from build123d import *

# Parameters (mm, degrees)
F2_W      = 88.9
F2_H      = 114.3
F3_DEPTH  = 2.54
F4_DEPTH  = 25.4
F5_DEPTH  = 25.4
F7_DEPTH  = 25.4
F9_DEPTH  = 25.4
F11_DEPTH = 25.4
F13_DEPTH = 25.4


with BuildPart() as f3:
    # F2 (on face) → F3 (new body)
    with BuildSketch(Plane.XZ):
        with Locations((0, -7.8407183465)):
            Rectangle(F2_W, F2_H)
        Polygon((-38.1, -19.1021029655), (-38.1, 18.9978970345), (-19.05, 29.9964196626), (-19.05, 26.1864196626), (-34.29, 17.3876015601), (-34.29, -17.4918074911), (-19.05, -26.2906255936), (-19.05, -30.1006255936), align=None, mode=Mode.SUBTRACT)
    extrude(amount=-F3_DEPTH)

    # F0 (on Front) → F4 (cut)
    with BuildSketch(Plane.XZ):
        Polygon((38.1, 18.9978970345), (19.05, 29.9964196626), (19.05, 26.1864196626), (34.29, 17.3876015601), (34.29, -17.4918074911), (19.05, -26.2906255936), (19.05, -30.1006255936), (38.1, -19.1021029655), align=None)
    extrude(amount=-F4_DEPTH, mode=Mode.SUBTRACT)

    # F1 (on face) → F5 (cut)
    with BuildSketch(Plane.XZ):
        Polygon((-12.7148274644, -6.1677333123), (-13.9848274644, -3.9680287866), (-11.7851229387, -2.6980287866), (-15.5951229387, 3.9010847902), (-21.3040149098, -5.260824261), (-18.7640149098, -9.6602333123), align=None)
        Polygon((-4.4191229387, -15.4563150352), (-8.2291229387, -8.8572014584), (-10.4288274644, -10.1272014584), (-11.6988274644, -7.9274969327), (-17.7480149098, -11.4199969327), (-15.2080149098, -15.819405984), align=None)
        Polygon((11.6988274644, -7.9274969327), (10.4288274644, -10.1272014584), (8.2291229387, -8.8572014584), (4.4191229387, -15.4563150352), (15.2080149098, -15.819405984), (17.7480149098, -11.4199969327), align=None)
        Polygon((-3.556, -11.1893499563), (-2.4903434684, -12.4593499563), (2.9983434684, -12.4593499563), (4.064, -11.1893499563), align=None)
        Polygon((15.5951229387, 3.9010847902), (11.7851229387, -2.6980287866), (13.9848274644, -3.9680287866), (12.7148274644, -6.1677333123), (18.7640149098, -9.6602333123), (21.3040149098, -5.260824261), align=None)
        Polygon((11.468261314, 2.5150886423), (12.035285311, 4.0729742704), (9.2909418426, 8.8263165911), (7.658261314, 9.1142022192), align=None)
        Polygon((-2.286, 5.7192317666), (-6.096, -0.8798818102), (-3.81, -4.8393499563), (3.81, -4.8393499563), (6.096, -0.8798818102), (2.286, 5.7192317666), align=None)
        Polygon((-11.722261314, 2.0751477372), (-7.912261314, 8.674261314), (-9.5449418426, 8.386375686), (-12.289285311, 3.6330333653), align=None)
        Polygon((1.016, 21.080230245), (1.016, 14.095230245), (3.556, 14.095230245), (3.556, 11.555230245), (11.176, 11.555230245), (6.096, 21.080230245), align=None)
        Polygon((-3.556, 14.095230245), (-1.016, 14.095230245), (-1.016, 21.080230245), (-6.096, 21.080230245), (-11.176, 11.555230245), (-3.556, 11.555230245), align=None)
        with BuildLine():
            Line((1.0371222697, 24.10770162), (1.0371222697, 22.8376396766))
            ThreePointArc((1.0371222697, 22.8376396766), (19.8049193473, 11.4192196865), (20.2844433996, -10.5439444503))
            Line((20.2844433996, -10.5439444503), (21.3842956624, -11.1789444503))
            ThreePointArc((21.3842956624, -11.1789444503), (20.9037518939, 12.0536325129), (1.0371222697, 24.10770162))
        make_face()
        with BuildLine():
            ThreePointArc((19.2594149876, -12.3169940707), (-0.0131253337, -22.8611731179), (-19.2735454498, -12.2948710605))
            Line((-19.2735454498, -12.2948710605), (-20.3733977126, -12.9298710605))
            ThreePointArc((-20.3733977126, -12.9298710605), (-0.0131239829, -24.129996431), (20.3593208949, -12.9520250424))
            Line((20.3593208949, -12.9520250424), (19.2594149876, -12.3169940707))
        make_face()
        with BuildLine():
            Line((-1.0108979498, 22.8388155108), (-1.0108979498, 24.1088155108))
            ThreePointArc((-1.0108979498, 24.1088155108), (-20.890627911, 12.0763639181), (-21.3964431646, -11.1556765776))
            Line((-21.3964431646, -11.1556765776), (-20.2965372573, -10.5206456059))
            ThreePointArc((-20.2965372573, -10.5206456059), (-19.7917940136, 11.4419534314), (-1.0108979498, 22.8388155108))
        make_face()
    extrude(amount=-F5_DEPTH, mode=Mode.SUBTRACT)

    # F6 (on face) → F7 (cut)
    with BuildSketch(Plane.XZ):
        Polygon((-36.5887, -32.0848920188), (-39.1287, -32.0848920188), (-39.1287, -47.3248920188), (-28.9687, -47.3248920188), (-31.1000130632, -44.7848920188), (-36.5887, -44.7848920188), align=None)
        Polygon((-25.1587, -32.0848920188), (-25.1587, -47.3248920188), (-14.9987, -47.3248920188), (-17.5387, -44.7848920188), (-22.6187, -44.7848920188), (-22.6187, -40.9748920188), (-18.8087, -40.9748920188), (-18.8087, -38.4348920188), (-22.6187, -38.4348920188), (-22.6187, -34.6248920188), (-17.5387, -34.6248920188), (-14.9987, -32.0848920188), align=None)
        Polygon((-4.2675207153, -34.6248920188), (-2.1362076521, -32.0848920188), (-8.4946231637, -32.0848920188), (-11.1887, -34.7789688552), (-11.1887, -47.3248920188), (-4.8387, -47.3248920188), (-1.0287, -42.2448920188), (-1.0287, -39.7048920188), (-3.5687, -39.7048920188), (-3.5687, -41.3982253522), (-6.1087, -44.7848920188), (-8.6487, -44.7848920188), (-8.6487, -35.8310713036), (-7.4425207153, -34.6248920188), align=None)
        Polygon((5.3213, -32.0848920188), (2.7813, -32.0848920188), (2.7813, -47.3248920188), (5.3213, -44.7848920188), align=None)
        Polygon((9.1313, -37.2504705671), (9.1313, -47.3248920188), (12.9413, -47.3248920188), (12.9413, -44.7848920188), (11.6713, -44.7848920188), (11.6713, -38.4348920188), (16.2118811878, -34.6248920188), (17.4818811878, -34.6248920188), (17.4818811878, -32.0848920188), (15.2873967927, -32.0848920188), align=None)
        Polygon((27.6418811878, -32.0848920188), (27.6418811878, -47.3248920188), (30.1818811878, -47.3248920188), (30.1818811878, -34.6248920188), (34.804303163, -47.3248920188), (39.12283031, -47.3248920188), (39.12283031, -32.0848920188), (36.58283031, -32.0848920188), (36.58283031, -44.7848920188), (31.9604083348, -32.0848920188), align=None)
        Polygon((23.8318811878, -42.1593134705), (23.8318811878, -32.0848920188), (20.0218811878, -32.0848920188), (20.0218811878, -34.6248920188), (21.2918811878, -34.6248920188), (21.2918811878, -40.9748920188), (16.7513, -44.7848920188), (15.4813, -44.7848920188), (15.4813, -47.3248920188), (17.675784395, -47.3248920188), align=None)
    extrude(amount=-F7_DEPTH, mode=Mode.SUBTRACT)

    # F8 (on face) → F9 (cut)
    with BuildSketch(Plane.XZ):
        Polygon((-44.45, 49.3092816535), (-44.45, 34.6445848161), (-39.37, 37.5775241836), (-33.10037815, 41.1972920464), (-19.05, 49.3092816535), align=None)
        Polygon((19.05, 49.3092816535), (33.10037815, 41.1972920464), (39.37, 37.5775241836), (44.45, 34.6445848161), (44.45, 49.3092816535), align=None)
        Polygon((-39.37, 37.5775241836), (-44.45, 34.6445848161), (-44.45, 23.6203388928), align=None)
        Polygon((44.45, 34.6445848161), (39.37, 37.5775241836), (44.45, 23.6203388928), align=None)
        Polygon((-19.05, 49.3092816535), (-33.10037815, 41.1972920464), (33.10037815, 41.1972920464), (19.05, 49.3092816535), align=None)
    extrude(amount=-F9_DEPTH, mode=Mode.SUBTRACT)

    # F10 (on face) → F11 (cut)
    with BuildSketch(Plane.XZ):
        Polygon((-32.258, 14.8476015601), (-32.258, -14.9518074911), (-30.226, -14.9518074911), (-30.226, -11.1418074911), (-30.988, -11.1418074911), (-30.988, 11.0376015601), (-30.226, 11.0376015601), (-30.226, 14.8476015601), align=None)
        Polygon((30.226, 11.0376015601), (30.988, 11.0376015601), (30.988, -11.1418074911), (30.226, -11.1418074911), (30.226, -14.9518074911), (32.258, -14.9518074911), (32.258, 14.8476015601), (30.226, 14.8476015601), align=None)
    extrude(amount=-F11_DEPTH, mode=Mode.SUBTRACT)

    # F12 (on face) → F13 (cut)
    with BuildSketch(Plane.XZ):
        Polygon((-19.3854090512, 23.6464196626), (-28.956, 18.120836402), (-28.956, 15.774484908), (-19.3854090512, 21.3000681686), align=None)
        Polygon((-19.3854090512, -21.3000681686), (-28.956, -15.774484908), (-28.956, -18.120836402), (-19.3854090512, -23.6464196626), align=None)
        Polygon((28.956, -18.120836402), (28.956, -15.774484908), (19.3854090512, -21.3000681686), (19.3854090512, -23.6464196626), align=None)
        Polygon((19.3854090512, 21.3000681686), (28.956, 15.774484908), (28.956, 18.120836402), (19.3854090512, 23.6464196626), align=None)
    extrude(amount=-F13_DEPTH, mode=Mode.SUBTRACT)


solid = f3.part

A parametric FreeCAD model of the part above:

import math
import FreeCAD as App
import Part
import Sketcher

V = App.Vector
Q = App.Units.Quantity

doc = App.newDocument("Part")
body = doc.addObject("PartDesign::Body", "Body")

sketch1 = body.newObject("Sketcher::SketchObject", "Sketch")
sketch1.AttachmentSupport = (doc.getObject("XZ_Plane"), [""])
sketch1.MapMode = "FlatFace"
sketch1.addGeometry([
    Part.LineSegment(V(-44.45, 49.309282, 0), V(-44.45, -64.990718, 0)),
    Part.LineSegment(V(-44.45, -64.990718, 0), V(44.45, -64.990718, 0)),
    Part.LineSegment(V(44.45, -64.990718, 0), V(44.45, 49.309282, 0)),
    Part.LineSegment(V(44.45, 49.309282, 0), V(-44.45, 49.309282, 0)),
    Part.LineSegment(V(-19.05, -30.100626, 0), V(-38.1, -19.102103, 0)),
    Part.LineSegment(V(-38.1, -19.102103, 0), V(-38.1, 18.997897, 0)),
    Part.LineSegment(V(-38.1, 18.997897, 0), V(-19.05, 29.99642, 0)),
    Part.LineSegment(V(-19.05, 29.99642, 0), V(-19.05, 26.18642, 0)),
    Part.LineSegment(V(-19.05, 26.18642, 0), V(-34.29, 17.387602, 0)),
    Part.LineSegment(V(-34.29, 17.387602, 0), V(-34.29, -17.491807, 0)),
    Part.LineSegment(V(-34.29, -17.491807, 0), V(-19.05, -26.290626, 0)),
    Part.LineSegment(V(-19.05, -26.290626, 0), V(-19.05, -30.100626, 0)),
], False)
sketch1.addConstraint([
    Sketcher.Constraint("Coincident", 0, 2, 1, 1),
    Sketcher.Constraint("Coincident", 1, 2, 2, 1),
    Sketcher.Constraint("Coincident", 2, 2, 3, 1),
    Sketcher.Constraint("Coincident", 3, 2, 0, 1),
    Sketcher.Constraint("Coincident", 4, 2, 5, 1),
    Sketcher.Constraint("Coincident", 5, 2, 6, 1),
    Sketcher.Constraint("Coincident", 6, 2, 7, 1),
    Sketcher.Constraint("Coincident", 7, 2, 8, 1),
    Sketcher.Constraint("Coincident", 8, 2, 9, 1),
    Sketcher.Constraint("Coincident", 9, 2, 10, 1),
    Sketcher.Constraint("Coincident", 10, 2, 11, 1),
    Sketcher.Constraint("Coincident", 11, 2, 4, 1),
    Sketcher.Constraint("Vertical", 0),
    Sketcher.Constraint("Horizontal", 1),
    Sketcher.Constraint("Vertical", 2),
    Sketcher.Constraint("Horizontal", 3),
    Sketcher.Constraint("Vertical", 5),
    Sketcher.Constraint("Vertical", 7),
    Sketcher.Constraint("Vertical", 9),
    Sketcher.Constraint("Vertical", 11),
    Sketcher.Constraint("Parallel", 6, 8),
    Sketcher.Constraint("Parallel", 4, 10),
    Sketcher.Constraint("Vertical", 7, 2, 10, 2),
    Sketcher.Constraint("Equal", 7, 11),
    Sketcher.Constraint("Equal", 4, 6),
    Sketcher.Constraint("DistanceX", 1, 1, 1, 2, Q("3.5 in")),
    Sketcher.Constraint("DistanceY", 0, 2, 0, 1, Q("4.5 in")),
    Sketcher.Constraint("DistanceY", 5, 1, 5, 2, Q("1.5 in")),
    Sketcher.Constraint("Angle", 4, Q("150 deg")),
    Sketcher.Constraint("DistanceX", 3, 2, 6, 2, Q("1 in")),
    Sketcher.Constraint("DistanceY", 7, 2, 7, 1, Q("0.15 in")),
    Sketcher.Constraint("DistanceX", 4, 2, -1, 1, Q("1.5 in")),
    Sketcher.Constraint("DistanceX", 8, 2, 7, 2, Q("0.6 in")),
    Sketcher.Constraint("DistanceX", 0, 2, -1, 1, Q("1.75 in")),
    Sketcher.Constraint("DistanceY", -1, 1, 8, 2, Q("17.387602 mm")),
    Sketcher.Constraint("DistanceY", 0, 2, -1, 1, Q("64.990718 mm")),
])
pad1 = body.newObject("PartDesign::Pad", "Pad")
pad1.Profile = sketch1
pad1.Length = Q("0.1 in")
pad1.Reversed = True

sketch2 = body.newObject("Sketcher::SketchObject", "Sketch001")
sketch2.AttachmentSupport = (doc.getObject("XZ_Plane"), [""])
sketch2.MapMode = "FlatFace"
sketch2.addGeometry([
    Part.LineSegment(V(38.1, 18.997897, 0), V(19.05, 29.99642, 0)),
    Part.LineSegment(V(19.05, 29.99642, 0), V(19.05, 26.18642, 0)),
    Part.LineSegment(V(19.05, 26.18642, 0), V(34.29, 17.387602, 0)),
    Part.LineSegment(V(34.29, 17.387602, 0), V(34.29, -17.491807, 0)),
    Part.LineSegment(V(34.29, -17.491807, 0), V(19.05, -26.290626, 0)),
    Part.LineSegment(V(19.05, -26.290626, 0), V(19.05, -30.100626, 0)),
    Part.LineSegment(V(19.05, -30.100626, 0), V(38.1, -19.102103, 0)),
    Part.LineSegment(V(38.1, -19.102103, 0), V(38.1, 18.997897, 0)),
], False)
sketch2.addConstraint([
    Sketcher.Constraint("Coincident", 0, 2, 1, 1),
    Sketcher.Constraint("Coincident", 1, 2, 2, 1),
    Sketcher.Constraint("Coincident", 2, 2, 3, 1),
    Sketcher.Constraint("Coincident", 3, 2, 4, 1),
    Sketcher.Constraint("Coincident", 4, 2, 5, 1),
    Sketcher.Constraint("Coincident", 5, 2, 6, 1),
    Sketcher.Constraint("Coincident", 6, 2, 7, 1),
    Sketcher.Constraint("Coincident", 7, 2, 0, 1),
    Sketcher.Constraint("Vertical", 1),
    Sketcher.Constraint("Vertical", 3),
    Sketcher.Constraint("Vertical", 5),
    Sketcher.Constraint("Vertical", 7),
    Sketcher.Constraint("Parallel", 0, 2),
    Sketcher.Constraint("Parallel", 4, 6),
    Sketcher.Constraint("Vertical", 1, 2, 4, 2),
    Sketcher.Constraint("Equal", 1, 5),
    Sketcher.Constraint("Equal", 2, 4),
    Sketcher.Constraint("DistanceY", 7, 1, 7, 2, Q("1.5 in")),
    Sketcher.Constraint("Angle", 0, Q("150 deg")),
    Sketcher.Constraint("DistanceY", 1, 2, 1, 1, Q("0.15 in")),
    Sketcher.Constraint("DistanceX", -1, 1, 6, 2, Q("1.5 in")),
    Sketcher.Constraint("DistanceX", 1, 2, 2, 2, Q("0.6 in")),
    Sketcher.Constraint("DistanceX", -1, 1, 0, 2, Q("0.75 in")),
    Sketcher.Constraint("DistanceY", -1, 1, 2, 2, Q("17.387602 mm")),
])
pocket1 = body.newObject("PartDesign::Pocket", "Pocket")
pocket1.Profile = sketch2
pocket1.Length = Q("1 in")

sketch3 = body.newObject("Sketcher::SketchObject", "Sketch002")
sketch3.AttachmentSupport = (doc.getObject("XZ_Plane"), [""])
sketch3.MapMode = "FlatFace"
sketch3.addGeometry([
    Part.LineSegment(V(-12.714827, -6.167733, 0), V(-13.984827, -3.968029, 0)),
    Part.LineSegment(V(-13.984827, -3.968029, 0), V(-11.785123, -2.698029, 0)),
    Part.LineSegment(V(-11.785123, -2.698029, 0), V(-15.595123, 3.901085, 0)),
    Part.LineSegment(V(-15.595123, 3.901085, 0), V(-21.304015, -5.260824, 0)),
    Part.LineSegment(V(-21.304015, -5.260824, 0), V(-18.764015, -9.660233, 0)),
    Part.LineSegment(V(-18.764015, -9.660233, 0), V(-12.714827, -6.167733, 0)),
    Part.LineSegment(V(-4.419123, -15.456315, 0), V(-8.229123, -8.857201, 0)),
    Part.LineSegment(V(-8.229123, -8.857201, 0), V(-10.428827, -10.127201, 0)),
    Part.LineSegment(V(-10.428827, -10.127201, 0), V(-11.698827, -7.927497, 0)),
    Part.LineSegment(V(-11.698827, -7.927497, 0), V(-17.748015, -11.419997, 0)),
    Part.LineSegment(V(-17.748015, -11.419997, 0), V(-15.208015, -15.819406, 0)),
    Part.LineSegment(V(-15.208015, -15.819406, 0), V(-4.419123, -15.456315, 0)),
    Part.LineSegment(V(11.698827, -7.927497, 0), V(10.428827, -10.127201, 0)),
    Part.LineSegment(V(10.428827, -10.127201, 0), V(8.229123, -8.857201, 0)),
    Part.LineSegment(V(8.229123, -8.857201, 0), V(4.419123, -15.456315, 0)),
    Part.LineSegment(V(4.419123, -15.456315, 0), V(15.208015, -15.819406, 0)),
    Part.LineSegment(V(15.208015, -15.819406, 0), V(17.748015, -11.419997, 0)),
    Part.LineSegment(V(17.748015, -11.419997, 0), V(11.698827, -7.927497, 0)),
    Part.LineSegment(V(-3.556, -11.18935, 0), V(-2.490343, -12.45935, 0)),
    Part.LineSegment(V(-2.490343, -12.45935, 0), V(2.998343, -12.45935, 0)),
    Part.LineSegment(V(2.998343, -12.45935, 0), V(4.064, -11.18935, 0)),
    Part.LineSegment(V(4.064, -11.18935, 0), V(-3.556, -11.18935, 0)),
    Part.LineSegment(V(15.595123, 3.901085, 0), V(11.785123, -2.698029, 0)),
    Part.LineSegment(V(11.785123, -2.698029, 0), V(13.984827, -3.968029, 0)),
    Part.LineSegment(V(13.984827, -3.968029, 0), V(12.714827, -6.167733, 0)),
    Part.LineSegment(V(12.714827, -6.167733, 0), V(18.764015, -9.660233, 0)),
    Part.LineSegment(V(18.764015, -9.660233, 0), V(21.304015, -5.260824, 0)),
    Part.LineSegment(V(21.304015, -5.260824, 0), V(15.595123, 3.901085, 0)),
    Part.LineSegment(V(11.468261, 2.515089, 0), V(12.035285, 4.072974, 0)),
    Part.LineSegment(V(12.035285, 4.072974, 0), V(9.290942, 8.826317, 0)),
    Part.LineSegment(V(9.290942, 8.826317, 0), V(7.658261, 9.114202, 0)),
    Part.LineSegment(V(7.658261, 9.114202, 0), V(11.468261, 2.515089, 0)),
    Part.LineSegment(V(-2.286, 5.719232, 0), V(-6.096, -0.879882, 0)),
    Part.LineSegment(V(-6.096, -0.879882, 0), V(-3.81, -4.83935, 0)),
    Part.LineSegment(V(-3.81, -4.83935, 0), V(3.81, -4.83935, 0)),
    Part.LineSegment(V(3.81, -4.83935, 0), V(6.096, -0.879882, 0)),
    Part.LineSegment(V(6.096, -0.879882, 0), V(2.286, 5.719232, 0)),
    Part.LineSegment(V(2.286, 5.719232, 0), V(-2.286, 5.719232, 0)),
    Part.LineSegment(V(-11.722261, 2.075148, 0), V(-7.912261, 8.674261, 0)),
    Part.LineSegment(V(-7.912261, 8.674261, 0), V(-9.544942, 8.386376, 0)),
    Part.LineSegment(V(-9.544942, 8.386376, 0), V(-12.289285, 3.633033, 0)),
    Part.LineSegment(V(-12.289285, 3.633033, 0), V(-11.722261, 2.075148, 0)),
    Part.LineSegment(V(1.016, 21.08023, 0), V(1.016, 14.09523, 0)),
    Part.LineSegment(V(1.016, 14.09523, 0), V(3.556, 14.09523, 0)),
    Part.LineSegment(V(3.556, 14.09523, 0), V(3.556, 11.55523, 0)),
    Part.LineSegment(V(3.556, 11.55523, 0), V(11.176, 11.55523, 0)),
    Part.LineSegment(V(11.176, 11.55523, 0), V(6.096, 21.08023, 0)),
    Part.LineSegment(V(6.096, 21.08023, 0), V(1.016, 21.08023, 0)),
    Part.LineSegment(V(-3.556, 14.09523, 0), V(-1.016, 14.09523, 0)),
    Part.LineSegment(V(-1.016, 14.09523, 0), V(-1.016, 21.08023, 0)),
    Part.LineSegment(V(-1.016, 21.08023, 0), V(-6.096, 21.08023, 0)),
    Part.LineSegment(V(-6.096, 21.08023, 0), V(-11.176, 11.55523, 0)),
    Part.LineSegment(V(-11.176, 11.55523, 0), V(-3.556, 11.55523, 0)),
    Part.LineSegment(V(-3.556, 11.55523, 0), V(-3.556, 14.09523, 0)),
    Part.LineSegment(V(1.037122, 24.107702, 0), V(1.037122, 22.83764, 0)),
    Part.ArcOfCircle(Part.Circle(V(0, 0, 0), V(0, 0, 1), 22.861177), math.radians(-27.465613), math.radians(87.399822)),
    Part.LineSegment(V(20.284443, -10.543944, 0), V(21.384296, -11.178944, 0)),
    Part.ArcOfCircle(Part.Circle(V(0, 0, 0), V(0, 0, 1), 24.13), math.radians(-27.598958), math.radians(87.536633)),
    Part.ArcOfCircle(Part.Circle(V(0, 0, 0), V(0, 0, 1), 22.861177), math.radians(-147.465613), math.radians(-32.600178)),
    Part.LineSegment(V(-19.273545, -12.294871, 0), V(-20.373398, -12.929871, 0)),
    Part.ArcOfCircle(Part.Circle(V(0, 0, 0), V(0, 0, 1), 24.13), math.radians(-147.598958), math.radians(-32.463367)),
    Part.LineSegment(V(20.359321, -12.952025, 0), V(19.259415, -12.316994, 0)),
    Part.LineSegment(V(-1.010898, 22.838816, 0), V(-1.010898, 24.108816, 0)),
    Part.ArcOfCircle(Part.Circle(V(0, 0, 0), V(0, 0, 1), 24.13), math.radians(92.401042), math.radians(207.536633)),
    Part.LineSegment(V(-21.396443, -11.155677, 0), V(-20.296537, -10.520646, 0)),
    Part.ArcOfCircle(Part.Circle(V(0, 0, 0), V(0, 0, 1), 22.861177), math.radians(92.534387), math.radians(207.399822)),
], False)
sketch3.addConstraint([
    Sketcher.Constraint("Coincident", 0, 2, 1, 1),
    Sketcher.Constraint("Coincident", 1, 2, 2, 1),
    Sketcher.Constraint("Coincident", 2, 2, 3, 1),
    Sketcher.Constraint("Coincident", 3, 2, 4, 1),
    Sketcher.Constraint("Coincident", 4, 2, 5, 1),
    Sketcher.Constraint("Coincident", 5, 2, 0, 1),
    Sketcher.Constraint("Coincident", 6, 2, 7, 1),
    Sketcher.Constraint("Coincident", 7, 2, 8, 1),
    Sketcher.Constraint("Coincident", 8, 2, 9, 1),
    Sketcher.Constraint("Coincident", 9, 2, 10, 1),
    Sketcher.Constraint("Coincident", 10, 2, 11, 1),
    Sketcher.Constraint("Coincident", 11, 2, 6, 1),
    Sketcher.Constraint("Coincident", 12, 2, 13, 1),
    Sketcher.Constraint("Coincident", 13, 2, 14, 1),
    Sketcher.Constraint("Coincident", 14, 2, 15, 1),
    Sketcher.Constraint("Coincident", 15, 2, 16, 1),
    Sketcher.Constraint("Coincident", 16, 2, 17, 1),
    Sketcher.Constraint("Coincident", 17, 2, 12, 1),
    Sketcher.Constraint("Coincident", 18, 2, 19, 1),
    Sketcher.Constraint("Coincident", 19, 2, 20, 1),
    Sketcher.Constraint("Coincident", 20, 2, 21, 1),
    Sketcher.Constraint("Coincident", 21, 2, 18, 1),
    Sketcher.Constraint("Coincident", 22, 2, 23, 1),
    Sketcher.Constraint("Coincident", 23, 2, 24, 1),
    Sketcher.Constraint("Coincident", 24, 2, 25, 1),
    Sketcher.Constraint("Coincident", 25, 2, 26, 1),
    Sketcher.Constraint("Coincident", 26, 2, 27, 1),
    Sketcher.Constraint("Coincident", 27, 2, 22, 1),
    Sketcher.Constraint("Coincident", 28, 2, 29, 1),
    Sketcher.Constraint("Coincident", 29, 2, 30, 1),
    Sketcher.Constraint("Coincident", 30, 2, 31, 1),
    Sketcher.Constraint("Coincident", 31, 2, 28, 1),
    Sketcher.Constraint("Coincident", 32, 2, 33, 1),
    Sketcher.Constraint("Coincident", 33, 2, 34, 1),
    Sketcher.Constraint("Coincident", 34, 2, 35, 1),
    Sketcher.Constraint("Coincident", 35, 2, 36, 1),
    Sketcher.Constraint("Coincident", 36, 2, 37, 1),
    Sketcher.Constraint("Coincident", 37, 2, 32, 1),
    Sketcher.Constraint("Coincident", 38, 2, 39, 1),
    Sketcher.Constraint("Coincident", 39, 2, 40, 1),
    Sketcher.Constraint("Coincident", 40, 2, 41, 1),
    Sketcher.Constraint("Coincident", 41, 2, 38, 1),
    Sketcher.Constraint("Coincident", 42, 2, 43, 1),
    Sketcher.Constraint("Coincident", 43, 2, 44, 1),
    Sketcher.Constraint("Coincident", 44, 2, 45, 1),
    Sketcher.Constraint("Coincident", 45, 2, 46, 1),
    Sketcher.Constraint("Coincident", 46, 2, 47, 1),
    Sketcher.Constraint("Coincident", 47, 2, 42, 1),
    Sketcher.Constraint("Coincident", 48, 2, 49, 1),
    Sketcher.Constraint("Coincident", 49, 2, 50, 1),
    Sketcher.Constraint("Coincident", 50, 2, 51, 1),
    Sketcher.Constraint("Coincident", 51, 2, 52, 1),
    Sketcher.Constraint("Coincident", 52, 2, 53, 1),
    Sketcher.Constraint("Coincident", 53, 2, 48, 1),
    Sketcher.Constraint("Coincident", 54, 2, 55, 2),
    Sketcher.Constraint("Coincident", 55, 1, 56, 1),
    Sketcher.Constraint("Coincident", 56, 2, 57, 1),
    Sketcher.Constraint("Coincident", 57, 2, 54, 1),
    Sketcher.Constraint("Coincident", 58, 1, 59, 1),
    Sketcher.Constraint("Coincident", 59, 2, 60, 1),
    Sketcher.Constraint("Coincident", 60, 2, 61, 1),
    Sketcher.Constraint("Coincident", 61, 2, 58, 2),
    Sketcher.Constraint("Coincident", 62, 2, 63, 1),
    Sketcher.Constraint("Coincident", 63, 2, 64, 1),
    Sketcher.Constraint("Coincident", 64, 2, 65, 2),
    Sketcher.Constraint("Coincident", 65, 1, 62, 1),
    Sketcher.Constraint("Horizontal", 19),
    Sketcher.Constraint("Horizontal", 21),
    Sketcher.Constraint("Horizontal", 34),
    Sketcher.Constraint("Horizontal", 37),
    Sketcher.Constraint("Vertical", 42),
    Sketcher.Constraint("Horizontal", 43),
    Sketcher.Constraint("Vertical", 44),
    Sketcher.Constraint("Horizontal", 45),
    Sketcher.Constraint("Horizontal", 47),
    Sketcher.Constraint("Horizontal", 48),
    Sketcher.Constraint("Vertical", 49),
    Sketcher.Constraint("Horizontal", 50),
    Sketcher.Constraint("Horizontal", 52),
    Sketcher.Constraint("Vertical", 53),
    Sketcher.Constraint("Vertical", 54),
    Sketcher.Constraint("Vertical", 62),
    Sketcher.Constraint("Coincident", 55, 3, -1, 1),
    Sketcher.Constraint("Coincident", 57, 3, -1, 1),
    Sketcher.Constraint("Coincident", 58, 3, -1, 1),
    Sketcher.Constraint("Coincident", 60, 3, -1, 1),
    Sketcher.Constraint("Coincident", 63, 3, -1, 1),
    Sketcher.Constraint("Coincident", 65, 3, -1, 1),
    Sketcher.Constraint("Radius", 57, Q("0.95 in")),
    Sketcher.Constraint("Radius", 60, Q("0.95 in")),
    Sketcher.Constraint("Radius", 63, Q("0.95 in")),
    Sketcher.Constraint("DistanceX", 21, 2, 21, 1, Q("0.3 in")),
    Sketcher.Constraint("DistanceX", 34, 1, 34, 2, Q("0.3 in")),
    Sketcher.Constraint("DistanceX", 43, 1, 43, 2, Q("0.1 in")),
    Sketcher.Constraint("DistanceX", 45, 1, 45, 2, Q("0.3 in")),
    Sketcher.Constraint("DistanceX", 47, 2, 47, 1, Q("0.2 in")),
    Sketcher.Constraint("DistanceX", 48, 1, 48, 2, Q("0.1 in")),
    Sketcher.Constraint("DistanceX", 50, 2, 50, 1, Q("0.2 in")),
    Sketcher.Constraint("DistanceX", 52, 1, 52, 2, Q("0.3 in")),
    Sketcher.Constraint("DistanceY", 44, 2, 44, 1, Q("0.1 in")),
    Sketcher.Constraint("DistanceY", 53, 1, 53, 2, Q("0.1 in")),
    Sketcher.Constraint("Distance", 0, Q("0.1 in")),
    Sketcher.Constraint("Distance", 1, Q("0.1 in")),
    Sketcher.Constraint("Distance", 2, Q("0.3 in")),
    Sketcher.Constraint("Distance", 4, Q("0.2 in")),
    Sketcher.Constraint("Distance", 6, Q("0.3 in")),
    Sketcher.Constraint("Distance", 7, Q("0.1 in")),
    Sketcher.Constraint("Distance", 8, Q("0.1 in")),
    Sketcher.Constraint("Distance", 10, Q("0.2 in")),
    Sketcher.Constraint("Distance", 12, Q("0.1 in")),
    Sketcher.Constraint("Distance", 13, Q("0.1 in")),
    Sketcher.Constraint("Distance", 14, Q("0.3 in")),
    Sketcher.Constraint("Distance", 16, Q("0.2 in")),
    Sketcher.Constraint("Distance", 22, Q("0.3 in")),
    Sketcher.Constraint("Distance", 23, Q("0.1 in")),
    Sketcher.Constraint("Distance", 24, Q("0.1 in")),
    Sketcher.Constraint("Distance", 26, Q("0.2 in")),
    Sketcher.Constraint("Distance", 31, Q("0.3 in")),
    Sketcher.Constraint("Distance", 32, Q("0.3 in")),
    Sketcher.Constraint("Distance", 36, Q("0.3 in")),
    Sketcher.Constraint("Distance", 38, Q("0.3 in")),
    Sketcher.Constraint("DistanceX", 37, 2, 37, 1, Q("0.18 in")),
    Sketcher.Constraint("DistanceY", 62, 1, 62, 2, Q("0.05 in")),
    Sketcher.Constraint("Distance", 33, Q("0.18 in")),
    Sketcher.Constraint("Distance", 35, Q("0.18 in")),
    Sketcher.Constraint("Distance", 56, Q("0.05 in")),
    Sketcher.Constraint("Distance", 59, Q("0.05 in")),
    Sketcher.Constraint("DistanceY", 42, 2, 42, 1, Q("0.275 in")),
    Sketcher.Constraint("DistanceY", 49, 1, 49, 2, Q("0.275 in")),
    Sketcher.Constraint("DistanceX", -1, 1, 20, 2, Q("0.16 in")),
    Sketcher.Constraint("DistanceX", 32, 2, -1, 1, Q("0.24 in")),
    Sketcher.Constraint("DistanceX", 33, 2, -1, 1, Q("0.15 in")),
    Sketcher.Constraint("DistanceX", -1, 1, 35, 2, Q("0.24 in")),
    Sketcher.Constraint("DistanceX", -1, 1, 42, 2, Q("0.04 in")),
    Sketcher.Constraint("DistanceX", 48, 2, -1, 1, Q("0.04 in")),
    Sketcher.Constraint("Distance", 3, Q("0.425 in")),
    Sketcher.Constraint("Distance", 5, Q("0.275 in")),
    Sketcher.Constraint("Distance", 9, Q("0.275 in")),
    Sketcher.Constraint("Distance", 11, Q("0.425 in")),
    Sketcher.Constraint("Distance", 15, Q("0.425 in")),
    Sketcher.Constraint("Distance", 17, Q("0.275 in")),
    Sketcher.Constraint("Distance", 25, Q("0.275 in")),
    Sketcher.Constraint("Distance", 27, Q("0.425 in")),
    Sketcher.Constraint("DistanceX", -1, 1, 55, 1, Q("0.7986001 in")),
    Sketcher.Constraint("DistanceY", 63, 2, -1, 1, Q("0.4391999 in")),
    Sketcher.Constraint("Radius", 55, Q("22.861177 mm")),
    Sketcher.Constraint("Radius", 58, Q("22.861177 mm")),
    Sketcher.Constraint("DistanceY", 6, 2, -1, 1, Q("8.857201 mm")),
    Sketcher.Constraint("DistanceY", 7, 2, -1, 1, Q("10.127201 mm")),
    Sketcher.Constraint("DistanceY", 12, 2, -1, 1, Q("10.127201 mm")),
    Sketcher.Constraint("DistanceY", 13, 2, -1, 1, Q("8.857201 mm")),
    Sketcher.Constraint("DistanceY", -1, 1, 57, 2, Q("24.107702 mm")),
    Sketcher.Constraint("Distance", 61, Q("1.270062 mm")),
    Sketcher.Constraint("Distance", 64, Q("1.270062 mm")),
    Sketcher.Constraint("DistanceX", 19, 1, 19, 2, Q("5.488687 mm")),
    Sketcher.Constraint("DistanceY", 0, 2, -1, 1, Q("3.968029 mm")),
    Sketcher.Constraint("DistanceY", 1, 2, -1, 1, Q("2.698029 mm")),
    Sketcher.Constraint("DistanceY", 18, 2, -1, 1, Q("12.45935 mm")),
    Sketcher.Constraint("DistanceY", 20, 2, -1, 1, Q("11.18935 mm")),
    Sketcher.Constraint("DistanceY", 22, 2, -1, 1, Q("2.698029 mm")),
    Sketcher.Constraint("DistanceY", 23, 2, -1, 1, Q("3.968029 mm")),
    Sketcher.Constraint("DistanceX", -1, 1, 29, 2, Q("9.290942 mm")),
    Sketcher.Constraint("DistanceX", -1, 1, 30, 2, Q("7.658261 mm")),
    Sketcher.Constraint("DistanceX", -1, 1, 31, 2, Q("11.468261 mm")),
    Sketcher.Constraint("DistanceY", -1, 1, 31, 2, Q("2.515089 mm")),
    Sketcher.Constraint("DistanceY", 32, 2, -1, 1, Q("0.879882 mm")),
    Sketcher.Constraint("DistanceX", 38, 2, -1, 1, Q("7.912261 mm")),
    Sketcher.Constraint("DistanceY", -1, 1, 38, 2, Q("8.674261 mm")),
    Sketcher.Constraint("DistanceX", 39, 2, -1, 1, Q("9.544942 mm")),
    Sketcher.Constraint("DistanceX", 41, 2, -1, 1, Q("11.722261 mm")),
    Sketcher.Constraint("DistanceY", -1, 1, 42, 2, Q("14.09523 mm")),
    Sketcher.Constraint("DistanceY", -1, 1, 48, 2, Q("14.09523 mm")),
    Sketcher.Constraint("DistanceY", 58, 1, -1, 1, Q("12.294871 mm")),
    Sketcher.Constraint("DistanceX", -1, 1, 60, 2, Q("20.359321 mm")),
    Sketcher.Constraint("Distance", 18, Q("1.657867 mm")),
    Sketcher.Constraint("Distance", 28, Q("1.657867 mm")),
    Sketcher.Constraint("Distance", 29, Q("5.488687 mm")),
    Sketcher.Constraint("Distance", 30, Q("1.657867 mm")),
    Sketcher.Constraint("Distance", 39, Q("1.657867 mm")),
    Sketcher.Constraint("Distance", 40, Q("5.488687 mm")),
    Sketcher.Constraint("Distance", 41, Q("1.657867 mm")),
    Sketcher.Constraint("DistanceX", 0, 2, -1, 1, Q("13.984827 mm")),
    Sketcher.Constraint("DistanceX", 2, 2, -1, 1, Q("15.595123 mm")),
    Sketcher.Constraint("DistanceX", 3, 2, -1, 1, Q("21.304015 mm")),
    Sketcher.Constraint("DistanceX", 4, 2, -1, 1, Q("18.764015 mm")),
    Sketcher.Constraint("DistanceX", 6, 2, -1, 1, Q("8.229123 mm")),
    Sketcher.Constraint("DistanceX", 8, 2, -1, 1, Q("11.698827 mm")),
    Sketcher.Constraint("DistanceX", 9, 2, -1, 1, Q("17.748015 mm")),
    Sketcher.Constraint("DistanceX", 10, 2, -1, 1, Q("15.208015 mm")),
    Sketcher.Constraint("DistanceX", -1, 1, 12, 2, Q("10.428827 mm")),
    Sketcher.Constraint("DistanceX", -1, 1, 14, 2, Q("4.419123 mm")),
    Sketcher.Constraint("DistanceX", -1, 1, 15, 2, Q("15.208015 mm")),
    Sketcher.Constraint("DistanceX", -1, 1, 16, 2, Q("17.748015 mm")),
    Sketcher.Constraint("DistanceX", -1, 1, 22, 2, Q("11.785123 mm")),
    Sketcher.Constraint("DistanceX", -1, 1, 24, 2, Q("12.714827 mm")),
    Sketcher.Constraint("DistanceX", -1, 1, 25, 2, Q("18.764015 mm")),
    Sketcher.Constraint("DistanceX", -1, 1, 26, 2, Q("21.304015 mm")),
    Sketcher.Constraint("DistanceX", 62, 2, -1, 1, Q("1.010898 mm")),
])
pocket2 = body.newObject("PartDesign::Pocket", "Pocket001")
pocket2.Profile = sketch3
pocket2.Length = Q("1 in")

sketch4 = body.newObject("Sketcher::SketchObject", "Sketch003")
sketch4.AttachmentSupport = (doc.getObject("XZ_Plane"), [""])
sketch4.MapMode = "FlatFace"
sketch4.addGeometry([
    Part.LineSegment(V(-36.5887, -32.084892, 0), V(-39.1287, -32.084892, 0)),
    Part.LineSegment(V(-39.1287, -32.084892, 0), V(-39.1287, -47.324892, 0)),
    Part.LineSegment(V(-39.1287, -47.324892, 0), V(-28.9687, -47.324892, 0)),
    Part.LineSegment(V(-28.9687, -47.324892, 0), V(-31.100013, -44.784892, 0)),
    Part.LineSegment(V(-31.100013, -44.784892, 0), V(-36.5887, -44.784892, 0)),
    Part.LineSegment(V(-36.5887, -44.784892, 0), V(-36.5887, -32.084892, 0)),
    Part.LineSegment(V(-25.1587, -32.084892, 0), V(-25.1587, -47.324892, 0)),
    Part.LineSegment(V(-25.1587, -47.324892, 0), V(-14.9987, -47.324892, 0)),
    Part.LineSegment(V(-14.9987, -47.324892, 0), V(-17.5387, -44.784892, 0)),
    Part.LineSegment(V(-17.5387, -44.784892, 0), V(-22.6187, -44.784892, 0)),
    Part.LineSegment(V(-22.6187, -44.784892, 0), V(-22.6187, -40.974892, 0)),
    Part.LineSegment(V(-22.6187, -40.974892, 0), V(-18.8087, -40.974892, 0)),
    Part.LineSegment(V(-18.8087, -40.974892, 0), V(-18.8087, -38.434892, 0)),
    Part.LineSegment(V(-18.8087, -38.434892, 0), V(-22.6187, -38.434892, 0)),
    Part.LineSegment(V(-22.6187, -38.434892, 0), V(-22.6187, -34.624892, 0)),
    Part.LineSegment(V(-22.6187, -34.624892, 0), V(-17.5387, -34.624892, 0)),
    Part.LineSegment(V(-17.5387, -34.624892, 0), V(-14.9987, -32.084892, 0)),
    Part.LineSegment(V(-14.9987, -32.084892, 0), V(-25.1587, -32.084892, 0)),
    Part.LineSegment(V(-4.267521, -34.624892, 0), V(-2.136208, -32.084892, 0)),
    Part.LineSegment(V(-2.136208, -32.084892, 0), V(-8.494623, -32.084892, 0)),
    Part.LineSegment(V(-8.494623, -32.084892, 0), V(-11.1887, -34.778969, 0)),
    Part.LineSegment(V(-11.1887, -34.778969, 0), V(-11.1887, -47.324892, 0)),
    Part.LineSegment(V(-11.1887, -47.324892, 0), V(-4.8387, -47.324892, 0)),
    Part.LineSegment(V(-4.8387, -47.324892, 0), V(-1.0287, -42.244892, 0)),
    Part.LineSegment(V(-1.0287, -42.244892, 0), V(-1.0287, -39.704892, 0)),
    Part.LineSegment(V(-1.0287, -39.704892, 0), V(-3.5687, -39.704892, 0)),
    Part.LineSegment(V(-3.5687, -39.704892, 0), V(-3.5687, -41.398225, 0)),
    Part.LineSegment(V(-3.5687, -41.398225, 0), V(-6.1087, -44.784892, 0)),
    Part.LineSegment(V(-6.1087, -44.784892, 0), V(-8.6487, -44.784892, 0)),
    Part.LineSegment(V(-8.6487, -44.784892, 0), V(-8.6487, -35.831071, 0)),
    Part.LineSegment(V(-8.6487, -35.831071, 0), V(-7.442521, -34.624892, 0)),
    Part.LineSegment(V(-7.442521, -34.624892, 0), V(-4.267521, -34.624892, 0)),
    Part.LineSegment(V(5.3213, -32.084892, 0), V(2.7813, -32.084892, 0)),
    Part.LineSegment(V(2.7813, -32.084892, 0), V(2.7813, -47.324892, 0)),
    Part.LineSegment(V(2.7813, -47.324892, 0), V(5.3213, -44.784892, 0)),
    Part.LineSegment(V(5.3213, -44.784892, 0), V(5.3213, -32.084892, 0)),
    Part.LineSegment(V(9.1313, -37.250471, 0), V(9.1313, -47.324892, 0)),
    Part.LineSegment(V(9.1313, -47.324892, 0), V(12.9413, -47.324892, 0)),
    Part.LineSegment(V(12.9413, -47.324892, 0), V(12.9413, -44.784892, 0)),
    Part.LineSegment(V(12.9413, -44.784892, 0), V(11.6713, -44.784892, 0)),
    Part.LineSegment(V(11.6713, -44.784892, 0), V(11.6713, -38.434892, 0)),
    Part.LineSegment(V(11.6713, -38.434892, 0), V(16.211881, -34.624892, 0)),
    Part.LineSegment(V(16.211881, -34.624892, 0), V(17.481881, -34.624892, 0)),
    Part.LineSegment(V(17.481881, -34.624892, 0), V(17.481881, -32.084892, 0)),
    Part.LineSegment(V(17.481881, -32.084892, 0), V(15.287397, -32.084892, 0)),
    Part.LineSegment(V(15.287397, -32.084892, 0), V(9.1313, -37.250471, 0)),
    Part.LineSegment(V(27.641881, -32.084892, 0), V(27.641881, -47.324892, 0)),
    Part.LineSegment(V(27.641881, -47.324892, 0), V(30.181881, -47.324892, 0)),
    Part.LineSegment(V(30.181881, -47.324892, 0), V(30.181881, -34.624892, 0)),
    Part.LineSegment(V(30.181881, -34.624892, 0), V(34.804303, -47.324892, 0)),
    Part.LineSegment(V(34.804303, -47.324892, 0), V(39.12283, -47.324892, 0)),
    Part.LineSegment(V(39.12283, -47.324892, 0), V(39.12283, -32.084892, 0)),
    Part.LineSegment(V(39.12283, -32.084892, 0), V(36.58283, -32.084892, 0)),
    Part.LineSegment(V(36.58283, -32.084892, 0), V(36.58283, -44.784892, 0)),
    Part.LineSegment(V(36.58283, -44.784892, 0), V(31.960408, -32.084892, 0)),
    Part.LineSegment(V(31.960408, -32.084892, 0), V(27.641881, -32.084892, 0)),
    Part.LineSegment(V(23.831881, -42.159313, 0), V(23.831881, -32.084892, 0)),
    Part.LineSegment(V(23.831881, -32.084892, 0), V(20.021881, -32.084892, 0)),
    Part.LineSegment(V(20.021881, -32.084892, 0), V(20.021881, -34.624892, 0)),
    Part.LineSegment(V(20.021881, -34.624892, 0), V(21.291881, -34.624892, 0)),
    Part.LineSegment(V(21.291881, -34.624892, 0), V(21.291881, -40.974892, 0)),
    Part.LineSegment(V(21.291881, -40.974892, 0), V(16.7513, -44.784892, 0)),
    Part.LineSegment(V(16.7513, -44.784892, 0), V(15.4813, -44.784892, 0)),
    Part.LineSegment(V(15.4813, -44.784892, 0), V(15.4813, -47.324892, 0)),
    Part.LineSegment(V(15.4813, -47.324892, 0), V(17.675784, -47.324892, 0)),
    Part.LineSegment(V(17.675784, -47.324892, 0), V(23.831881, -42.159313, 0)),
], False)
sketch4.addConstraint([
    Sketcher.Constraint("Coincident", 0, 2, 1, 1),
    Sketcher.Constraint("Coincident", 1, 2, 2, 1),
    Sketcher.Constraint("Coincident", 2, 2, 3, 1),
    Sketcher.Constraint("Coincident", 3, 2, 4, 1),
    Sketcher.Constraint("Coincident", 4, 2, 5, 1),
    Sketcher.Constraint("Coincident", 5, 2, 0, 1),
    Sketcher.Constraint("Coincident", 6, 2, 7, 1),
    Sketcher.Constraint("Coincident", 7, 2, 8, 1),
    Sketcher.Constraint("Coincident", 8, 2, 9, 1),
    Sketcher.Constraint("Coincident", 9, 2, 10, 1),
    Sketcher.Constraint("Coincident", 10, 2, 11, 1),
    Sketcher.Constraint("Coincident", 11, 2, 12, 1),
    Sketcher.Constraint("Coincident", 12, 2, 13, 1),
    Sketcher.Constraint("Coincident", 13, 2, 14, 1),
    Sketcher.Constraint("Coincident", 14, 2, 15, 1),
    Sketcher.Constraint("Coincident", 15, 2, 16, 1),
    Sketcher.Constraint("Coincident", 16, 2, 17, 1),
    Sketcher.Constraint("Coincident", 17, 2, 6, 1),
    Sketcher.Constraint("Coincident", 18, 2, 19, 1),
    Sketcher.Constraint("Coincident", 19, 2, 20, 1),
    Sketcher.Constraint("Coincident", 20, 2, 21, 1),
    Sketcher.Constraint("Coincident", 21, 2, 22, 1),
    Sketcher.Constraint("Coincident", 22, 2, 23, 1),
    Sketcher.Constraint("Coincident", 23, 2, 24, 1),
    Sketcher.Constraint("Coincident", 24, 2, 25, 1),
    Sketcher.Constraint("Coincident", 25, 2, 26, 1),
    Sketcher.Constraint("Coincident", 26, 2, 27, 1),
    Sketcher.Constraint("Coincident", 27, 2, 28, 1),
    Sketcher.Constraint("Coincident", 28, 2, 29, 1),
    Sketcher.Constraint("Coincident", 29, 2, 30, 1),
    Sketcher.Constraint("Coincident", 30, 2, 31, 1),
    Sketcher.Constraint("Coincident", 31, 2, 18, 1),
    Sketcher.Constraint("Coincident", 32, 2, 33, 1),
    Sketcher.Constraint("Coincident", 33, 2, 34, 1),
    Sketcher.Constraint("Coincident", 34, 2, 35, 1),
    Sketcher.Constraint("Coincident", 35, 2, 32, 1),
    Sketcher.Constraint("Coincident", 36, 2, 37, 1),
    Sketcher.Constraint("Coincident", 37, 2, 38, 1),
    Sketcher.Constraint("Coincident", 38, 2, 39, 1),
    Sketcher.Constraint("Coincident", 39, 2, 40, 1),
    Sketcher.Constraint("Coincident", 40, 2, 41, 1),
    Sketcher.Constraint("Coincident", 41, 2, 42, 1),
    Sketcher.Constraint("Coincident", 42, 2, 43, 1),
    Sketcher.Constraint("Coincident", 43, 2, 44, 1),
    Sketcher.Constraint("Coincident", 44, 2, 45, 1),
    Sketcher.Constraint("Coincident", 45, 2, 36, 1),
    Sketcher.Constraint("Coincident", 46, 2, 47, 1),
    Sketcher.Constraint("Coincident", 47, 2, 48, 1),
    Sketcher.Constraint("Coincident", 48, 2, 49, 1),
    Sketcher.Constraint("Coincident", 49, 2, 50, 1),
    Sketcher.Constraint("Coincident", 50, 2, 51, 1),
    Sketcher.Constraint("Coincident", 51, 2, 52, 1),
    Sketcher.Constraint("Coincident", 52, 2, 53, 1),
    Sketcher.Constraint("Coincident", 53, 2, 54, 1),
    Sketcher.Constraint("Coincident", 54, 2, 55, 1),
    Sketcher.Constraint("Coincident", 55, 2, 46, 1),
    Sketcher.Constraint("Coincident", 56, 2, 57, 1),
    Sketcher.Constraint("Coincident", 57, 2, 58, 1),
    Sketcher.Constraint("Coincident", 58, 2, 59, 1),
    Sketcher.Constraint("Coincident", 59, 2, 60, 1),
    Sketcher.Constraint("Coincident", 60, 2, 61, 1),
    Sketcher.Constraint("Coincident", 61, 2, 62, 1),
    Sketcher.Constraint("Coincident", 62, 2, 63, 1),
    Sketcher.Constraint("Coincident", 63, 2, 64, 1),
    Sketcher.Constraint("Coincident", 64, 2, 65, 1),
    Sketcher.Constraint("Coincident", 65, 2, 56, 1),
    Sketcher.Constraint("Horizontal", 0),
    Sketcher.Constraint("Vertical", 1),
    Sketcher.Constraint("Horizontal", 2),
    Sketcher.Constraint("Horizontal", 4),
    Sketcher.Constraint("Vertical", 5),
    Sketcher.Constraint("Vertical", 6),
    Sketcher.Constraint("Horizontal", 7),
    Sketcher.Constraint("Horizontal", 9),
    Sketcher.Constraint("Vertical", 10),
    Sketcher.Constraint("Horizontal", 11),
    Sketcher.Constraint("Vertical", 12),
    Sketcher.Constraint("Horizontal", 13),
    Sketcher.Constraint("Vertical", 14),
    Sketcher.Constraint("Horizontal", 15),
    Sketcher.Constraint("Horizontal", 17),
    Sketcher.Constraint("Horizontal", 19),
    Sketcher.Constraint("Vertical", 21),
    Sketcher.Constraint("Horizontal", 22),
    Sketcher.Constraint("Vertical", 24),
    Sketcher.Constraint("Horizontal", 25),
    Sketcher.Constraint("Vertical", 26),
    Sketcher.Constraint("Horizontal", 28),
    Sketcher.Constraint("Vertical", 29),
    Sketcher.Constraint("Horizontal", 31),
    Sketcher.Constraint("Horizontal", 32),
    Sketcher.Constraint("Vertical", 33),
    Sketcher.Constraint("Vertical", 35),
    Sketcher.Constraint("Vertical", 36),
    Sketcher.Constraint("Horizontal", 37),
    Sketcher.Constraint("Vertical", 38),
    Sketcher.Constraint("Horizontal", 39),
    Sketcher.Constraint("Vertical", 40),
    Sketcher.Constraint("Horizontal", 42),
    Sketcher.Constraint("Vertical", 43),
    Sketcher.Constraint("Horizontal", 44),
    Sketcher.Constraint("Vertical", 46),
    Sketcher.Constraint("Horizontal", 47),
    Sketcher.Constraint("Vertical", 48),
    Sketcher.Constraint("Horizontal", 50),
    Sketcher.Constraint("Vertical", 51),
    Sketcher.Constraint("Horizontal", 52),
    Sketcher.Constraint("Vertical", 53),
    Sketcher.Constraint("Horizontal", 55),
    Sketcher.Constraint("Vertical", 56),
    Sketcher.Constraint("Horizontal", 57),
    Sketcher.Constraint("Vertical", 58),
    Sketcher.Constraint("Horizontal", 59),
    Sketcher.Constraint("Vertical", 60),
    Sketcher.Constraint("Horizontal", 62),
    Sketcher.Constraint("Vertical", 63),
    Sketcher.Constraint("Horizontal", 64),
    Sketcher.Constraint("Perpendicular", 8, 16),
    Sketcher.Constraint("Parallel", 16, 20),
    Sketcher.Constraint("Parallel", 23, 27),
    Sketcher.Constraint("Parallel", 20, 30),
    Sketcher.Constraint("Parallel", 30, 34),
    Sketcher.Constraint("Perpendicular", 3, 41),
    Sketcher.Constraint("Parallel", 41, 45),
    Sketcher.Constraint("Parallel", 49, 54),
    Sketcher.Constraint("Parallel", 45, 61),
    Sketcher.Constraint("Parallel", 61, 65),
    Sketcher.Constraint("Horizontal", 2, 2, 6, 2),
    Sketcher.Constraint("Horizontal", 4, 2, 8, 2),
    Sketcher.Constraint("Horizontal", 5, 2, 16, 2),
    Sketcher.Constraint("Horizontal", 17, 2, 18, 2),
    Sketcher.Constraint("Horizontal", 7, 2, 21, 2),
    Sketcher.Constraint("Horizontal", 9, 2, 27, 2),
    Sketcher.Constraint("Horizontal", 15, 2, 30, 2),
    Sketcher.Constraint("Horizontal", 19, 2, 32, 2),
    Sketcher.Constraint("Horizontal", 22, 2, 33, 2),
    Sketcher.Constraint("Horizontal", 28, 2, 34, 2),
    Sketcher.Constraint("Horizontal", 33, 2, 36, 2),
    Sketcher.Constraint("Horizontal", 34, 2, 38, 2),
    Sketcher.Constraint("Horizontal", 13, 2, 40, 2),
    Sketcher.Constraint("Horizontal", 31, 2, 41, 2),
    Sketcher.Constraint("Horizontal", 35, 2, 43, 2),
    Sketcher.Constraint("Horizontal", 37, 2, 46, 2),
    Sketcher.Constraint("Horizontal", 42, 2, 48, 2),
    Sketcher.Constraint("Horizontal", 47, 2, 49, 2),
    Sketcher.Constraint("Horizontal", 44, 2, 51, 2),
    Sketcher.Constraint("Horizontal", 39, 2, 53, 2),
    Sketcher.Constraint("Horizontal", 52, 2, 54, 2),
    Sketcher.Constraint("Horizontal", 55, 2, 56, 2),
    Sketcher.Constraint("Horizontal", 48, 2, 58, 2),
    Sketcher.Constraint("Horizontal", 11, 2, 60, 2),
    Sketcher.Constraint("Horizontal", 53, 2, 61, 2),
    Sketcher.Constraint("Horizontal", 50, 2, 63, 2),
    Sketcher.Constraint("Vertical", 10, 2, 13, 2),
    Sketcher.Constraint("Vertical", 8, 2, 15, 2),
    Sketcher.Constraint("Vertical", 7, 2, 16, 2),
    Sketcher.Constraint("Equal", 2, 7),
    Sketcher.Constraint("Equal", 0, 25),
    Sketcher.Constraint("Equal", 25, 28),
    Sketcher.Constraint("Equal", 28, 32),
    Sketcher.Constraint("Equal", 13, 37),
    Sketcher.Constraint("Equal", 39, 42),
    Sketcher.Constraint("Equal", 32, 47),
    Sketcher.Constraint("Equal", 47, 52),
    Sketcher.Constraint("Equal", 50, 55),
    Sketcher.Constraint("Equal", 37, 57),
    Sketcher.Constraint("Equal", 42, 59),
    Sketcher.Constraint("Equal", 59, 62),
    Sketcher.Constraint("Equal", 44, 64),
    Sketcher.Constraint("Equal", 57, 10),
    Sketcher.Constraint("Equal", 52, 12),
    Sketcher.Constraint("Equal", 10, 14),
    Sketcher.Constraint("Equal", 12, 24),
    Sketcher.Constraint("Equal", 22, 40),
    Sketcher.Constraint("Equal", 3, 18),
    Sketcher.Constraint("DistanceX", 0, 2, 0, 1, Q("0.1 in")),
    Sketcher.Constraint("DistanceX", 2, 1, 2, 2, Q("0.4 in")),
    Sketcher.Constraint("DistanceX", 9, 2, 9, 1, Q("0.2 in")),
    Sketcher.Constraint("DistanceY", 1, 2, 1, 1, Q("0.6 in")),
    Sketcher.Constraint("Angle", 3, Q("130 deg")),
    Sketcher.Constraint("Angle", 49, Q("-70 deg")),
    Sketcher.Constraint("DistanceX", 39, 2, 39, 1, Q("0.05 in")),
    Sketcher.Constraint("Distance", 20, Q("0.15 in")),
    Sketcher.Constraint("Distance", 23, Q("0.25 in")),
    Sketcher.Constraint("DistanceX", 31, 1, 31, 2, Q("0.125 in")),
    Sketcher.Constraint("DistanceX", 0, 2, -1, 1, Q("1.5405 in")),
    Sketcher.Constraint("DistanceX", 6, 2, -1, 1, Q("0.9905 in")),
    Sketcher.Constraint("DistanceX", 20, 2, -1, 1, Q("0.4405 in")),
    Sketcher.Constraint("DistanceX", 23, 2, -1, 1, Q("0.0405 in")),
    Sketcher.Constraint("DistanceX", 27, 2, -1, 1, Q("0.2405 in")),
    Sketcher.Constraint("DistanceX", -1, 1, 32, 2, Q("0.1095 in")),
    Sketcher.Constraint("DistanceX", -1, 1, 36, 2, Q("0.3595 in")),
    Sketcher.Constraint("DistanceX", -1, 1, 61, 2, Q("0.6595 in")),
    Sketcher.Constraint("DistanceY", 29, 1, 29, 2, Q("8.953821 mm")),
    Sketcher.Constraint("DistanceY", 36, 2, 36, 1, Q("10.074421 mm")),
    Sketcher.Constraint("DistanceX", 50, 1, 50, 2, Q("4.318527 mm")),
    Sketcher.Constraint("DistanceY", 20, 2, -1, 1, Q("34.778969 mm")),
    Sketcher.Constraint("DistanceX", -1, 1, 46, 2, Q("27.641881 mm")),
])
pocket3 = body.newObject("PartDesign::Pocket", "Pocket002")
pocket3.Profile = sketch4
pocket3.Length = Q("1 in")

sketch5 = body.newObject("Sketcher::SketchObject", "Sketch004")
sketch5.AttachmentSupport = (doc.getObject("XZ_Plane"), [""])
sketch5.MapMode = "FlatFace"
sketch5.addGeometry([
    Part.LineSegment(V(-44.45, 49.309282, 0), V(-44.45, 23.620339, 0)),
    Part.LineSegment(V(-44.45, 23.620339, 0), V(-39.37, 37.577524, 0)),
    Part.LineSegment(V(-39.37, 37.577524, 0), V(-33.100378, 41.197292, 0)),
    Part.LineSegment(V(-33.100378, 41.197292, 0), V(33.100378, 41.197292, 0)),
    Part.LineSegment(V(33.100378, 41.197292, 0), V(39.37, 37.577524, 0)),
    Part.LineSegment(V(39.37, 37.577524, 0), V(44.45, 23.620339, 0)),
    Part.LineSegment(V(44.45, 23.620339, 0), V(44.45, 49.309282, 0)),
    Part.LineSegment(V(44.45, 49.309282, 0), V(-44.45, 49.309282, 0)),
], False)
sketch5.addConstraint([
    Sketcher.Constraint("Coincident", 0, 2, 1, 1),
    Sketcher.Constraint("Coincident", 1, 2, 2, 1),
    Sketcher.Constraint("Coincident", 2, 2, 3, 1),
    Sketcher.Constraint("Coincident", 3, 2, 4, 1),
    Sketcher.Constraint("Coincident", 4, 2, 5, 1),
    Sketcher.Constraint("Coincident", 5, 2, 6, 1),
    Sketcher.Constraint("Coincident", 6, 2, 7, 1),
    Sketcher.Constraint("Coincident", 7, 2, 0, 1),
    Sketcher.Constraint("Vertical", 0),
    Sketcher.Constraint("Horizontal", 3),
    Sketcher.Constraint("Vertical", 6),
    Sketcher.Constraint("Horizontal", 7),
    Sketcher.Constraint("Symmetric", 1, 2, 4, 2, -2),
    Sketcher.Constraint("Symmetric", 0, 2, 5, 2, -2),
    Sketcher.Constraint("Equal", 2, 4),
    Sketcher.Constraint("DistanceX", 7, 2, 7, 1, Q("3.5 in")),
    Sketcher.Constraint("Angle", 1, Q("70 deg")),
    Sketcher.Constraint("Angle", 2, Q("30 deg")),
    Sketcher.Constraint("DistanceX", 0, 2, 1, 2, Q("0.2 in")),
    Sketcher.Constraint("DistanceX", 3, 1, 3, 2, Q("66.200756 mm")),
    Sketcher.Constraint("DistanceY", 0, 2, 0, 1, Q("25.688943 mm")),
    Sketcher.Constraint("DistanceY", -1, 1, 0, 2, Q("23.620339 mm")),
])
pocket4 = body.newObject("PartDesign::Pocket", "Pocket003")
pocket4.Profile = sketch5
pocket4.Length = Q("1 in")

sketch6 = body.newObject("Sketcher::SketchObject", "Sketch005")
sketch6.AttachmentSupport = (doc.getObject("XZ_Plane"), [""])
sketch6.MapMode = "FlatFace"
sketch6.addGeometry([
    Part.LineSegment(V(-32.258, 14.847602, 0), V(-32.258, -14.951807, 0)),
    Part.LineSegment(V(-32.258, -14.951807, 0), V(-30.226, -14.951807, 0)),
    Part.LineSegment(V(-30.226, -14.951807, 0), V(-30.226, -11.141807, 0)),
    Part.LineSegment(V(-30.226, -11.141807, 0), V(-30.988, -11.141807, 0)),
    Part.LineSegment(V(-30.988, -11.141807, 0), V(-30.988, 11.037602, 0)),
    Part.LineSegment(V(-30.988, 11.037602, 0), V(-30.226, 11.037602, 0)),
    Part.LineSegment(V(-30.226, 11.037602, 0), V(-30.226, 14.847602, 0)),
    Part.LineSegment(V(-30.226, 14.847602, 0), V(-32.258, 14.847602, 0)),
    Part.LineSegment(V(30.226, 11.037602, 0), V(30.988, 11.037602, 0)),
    Part.LineSegment(V(30.988, 11.037602, 0), V(30.988, -11.141807, 0)),
    Part.LineSegment(V(30.988, -11.141807, 0), V(30.226, -11.141807, 0)),
    Part.LineSegment(V(30.226, -11.141807, 0), V(30.226, -14.951807, 0)),
    Part.LineSegment(V(30.226, -14.951807, 0), V(32.258, -14.951807, 0)),
    Part.LineSegment(V(32.258, -14.951807, 0), V(32.258, 14.847602, 0)),
    Part.LineSegment(V(32.258, 14.847602, 0), V(30.226, 14.847602, 0)),
    Part.LineSegment(V(30.226, 14.847602, 0), V(30.226, 11.037602, 0)),
], False)
sketch6.addConstraint([
    Sketcher.Constraint("Coincident", 0, 2, 1, 1),
    Sketcher.Constraint("Coincident", 1, 2, 2, 1),
    Sketcher.Constraint("Coincident", 2, 2, 3, 1),
    Sketcher.Constraint("Coincident", 3, 2, 4, 1),
    Sketcher.Constraint("Coincident", 4, 2, 5, 1),
    Sketcher.Constraint("Coincident", 5, 2, 6, 1),
    Sketcher.Constraint("Coincident", 6, 2, 7, 1),
    Sketcher.Constraint("Coincident", 7, 2, 0, 1),
    Sketcher.Constraint("Coincident", 8, 2, 9, 1),
    Sketcher.Constraint("Coincident", 9, 2, 10, 1),
    Sketcher.Constraint("Coincident", 10, 2, 11, 1),
    Sketcher.Constraint("Coincident", 11, 2, 12, 1),
    Sketcher.Constraint("Coincident", 12, 2, 13, 1),
    Sketcher.Constraint("Coincident", 13, 2, 14, 1),
    Sketcher.Constraint("Coincident", 14, 2, 15, 1),
    Sketcher.Constraint("Coincident", 15, 2, 8, 1),
    Sketcher.Constraint("Vertical", 0),
    Sketcher.Constraint("Horizontal", 1),
    Sketcher.Constraint("Vertical", 2),
    Sketcher.Constraint("Horizontal", 3),
    Sketcher.Constraint("Vertical", 4),
    Sketcher.Constraint("Horizontal", 5),
    Sketcher.Constraint("Vertical", 6),
    Sketcher.Constraint("Horizontal", 7),
    Sketcher.Constraint("Horizontal", 8),
    Sketcher.Constraint("Vertical", 9),
    Sketcher.Constraint("Horizontal", 10),
    Sketcher.Constraint("Vertical", 11),
    Sketcher.Constraint("Horizontal", 12),
    Sketcher.Constraint("Vertical", 13),
    Sketcher.Constraint("Horizontal", 14),
    Sketcher.Constraint("Vertical", 15),
    Sketcher.Constraint("Symmetric", 4, 2, 8, 2, -2),
    Sketcher.Constraint("Symmetric", 2, 2, 10, 2, -2),
    Sketcher.Constraint("Symmetric", 0, 2, 12, 2, -2),
    Sketcher.Constraint("Symmetric", 6, 2, 14, 2, -2),
    Sketcher.Constraint("Vertical", 2, 2, 5, 2),
    Sketcher.Constraint("Equal", 2, 6),
    Sketcher.Constraint("DistanceX", 1, 1, 1, 2, Q("0.08 in")),
    Sketcher.Constraint("DistanceX", 3, 2, 3, 1, Q("0.03 in")),
    Sketcher.Constraint("DistanceY", 2, 1, 2, 2, Q("0.15 in")),
    Sketcher.Constraint("DistanceX", 0, 2, -1, 1, Q("1.27 in")),
    Sketcher.Constraint("DistanceY", 0, 2, 0, 1, Q("29.799409 mm")),
    Sketcher.Constraint("DistanceY", -1, 1, 4, 2, Q("11.037602 mm")),
])
pocket5 = body.newObject("PartDesign::Pocket", "Pocket004")
pocket5.Profile = sketch6
pocket5.Length = Q("1 in")

sketch7 = body.newObject("Sketcher::SketchObject", "Sketch006")
sketch7.AttachmentSupport = (doc.getObject("XZ_Plane"), [""])
sketch7.MapMode = "FlatFace"
sketch7.addGeometry([
    Part.LineSegment(V(-19.385409, 23.64642, 0), V(-28.956, 18.120836, 0)),
    Part.LineSegment(V(-28.956, 18.120836, 0), V(-28.956, 15.774485, 0)),
    Part.LineSegment(V(-28.956, 15.774485, 0), V(-19.385409, 21.300068, 0)),
    Part.LineSegment(V(-19.385409, 21.300068, 0), V(-19.385409, 23.64642, 0)),
    Part.LineSegment(V(-19.385409, -21.300068, 0), V(-28.956, -15.774485, 0)),
    Part.LineSegment(V(-28.956, -15.774485, 0), V(-28.956, -18.120836, 0)),
    Part.LineSegment(V(-28.956, -18.120836, 0), V(-19.385409, -23.64642, 0)),
    Part.LineSegment(V(-19.385409, -23.64642, 0), V(-19.385409, -21.300068, 0)),
    Part.LineSegment(V(28.956, -18.120836, 0), V(28.956, -15.774485, 0)),
    Part.LineSegment(V(28.956, -15.774485, 0), V(19.385409, -21.300068, 0)),
    Part.LineSegment(V(19.385409, -21.300068, 0), V(19.385409, -23.64642, 0)),
    Part.LineSegment(V(19.385409, -23.64642, 0), V(28.956, -18.120836, 0)),
    Part.LineSegment(V(19.385409, 21.300068, 0), V(28.956, 15.774485, 0)),
    Part.LineSegment(V(28.956, 15.774485, 0), V(28.956, 18.120836, 0)),
    Part.LineSegment(V(28.956, 18.120836, 0), V(19.385409, 23.64642, 0)),
    Part.LineSegment(V(19.385409, 23.64642, 0), V(19.385409, 21.300068, 0)),
], False)
sketch7.addConstraint([
    Sketcher.Constraint("Coincident", 0, 2, 1, 1),
    Sketcher.Constraint("Coincident", 1, 2, 2, 1),
    Sketcher.Constraint("Coincident", 2, 2, 3, 1),
    Sketcher.Constraint("Coincident", 3, 2, 0, 1),
    Sketcher.Constraint("Coincident", 4, 2, 5, 1),
    Sketcher.Constraint("Coincident", 5, 2, 6, 1),
    Sketcher.Constraint("Coincident", 6, 2, 7, 1),
    Sketcher.Constraint("Coincident", 7, 2, 4, 1),
    Sketcher.Constraint("Coincident", 8, 2, 9, 1),
    Sketcher.Constraint("Coincident", 9, 2, 10, 1),
    Sketcher.Constraint("Coincident", 10, 2, 11, 1),
    Sketcher.Constraint("Coincident", 11, 2, 8, 1),
    Sketcher.Constraint("Coincident", 12, 2, 13, 1),
    Sketcher.Constraint("Coincident", 13, 2, 14, 1),
    Sketcher.Constraint("Coincident", 14, 2, 15, 1),
    Sketcher.Constraint("Coincident", 15, 2, 12, 1),
    Sketcher.Constraint("Vertical", 1),
    Sketcher.Constraint("Vertical", 3),
    Sketcher.Constraint("Vertical", 5),
    Sketcher.Constraint("Vertical", 7),
    Sketcher.Constraint("Vertical", 8),
    Sketcher.Constraint("Vertical", 10),
    Sketcher.Constraint("Vertical", 13),
    Sketcher.Constraint("Vertical", 15),
    Sketcher.Constraint("Symmetric", 1, 2, 8, 2, -1, 1),
    Sketcher.Constraint("Symmetric", 2, 2, 9, 2, -1, 1),
    Sketcher.Constraint("Symmetric", 4, 2, 12, 2, -1, 1),
    Sketcher.Constraint("Symmetric", 6, 2, 14, 2, -1, 1),
    Sketcher.Constraint("Symmetric", 4, 2, 8, 2, -2),
    Sketcher.Constraint("Symmetric", 7, 2, 9, 2, -2),
    Sketcher.Constraint("Parallel", 0, 2),
    Sketcher.Constraint("Parallel", 4, 6),
    Sketcher.Constraint("Parallel", 9, 11),
    Sketcher.Constraint("Parallel", 6, 12),
    Sketcher.Constraint("Parallel", 12, 14),
    Sketcher.Constraint("Horizontal", 6, 2, 10, 2),
    Sketcher.Constraint("Horizontal", 0, 2, 13, 2),
    Sketcher.Constraint("Angle", 0, Q("-150 deg")),
    Sketcher.Constraint("DistanceX", 0, 2, -1, 1, Q("1.14 in")),
    Sketcher.Constraint("DistanceY", 1, 2, 1, 1, Q("2.346351 mm")),
    Sketcher.Constraint("DistanceX", 2, 2, -1, 1, Q("19.385409 mm")),
    Sketcher.Constraint("DistanceY", -1, 1, 2, 2, Q("21.300068 mm")),
])
pocket6 = body.newObject("PartDesign::Pocket", "Pocket005")
pocket6.Profile = sketch7
pocket6.Length = Q("1 in")

doc.recompute()
